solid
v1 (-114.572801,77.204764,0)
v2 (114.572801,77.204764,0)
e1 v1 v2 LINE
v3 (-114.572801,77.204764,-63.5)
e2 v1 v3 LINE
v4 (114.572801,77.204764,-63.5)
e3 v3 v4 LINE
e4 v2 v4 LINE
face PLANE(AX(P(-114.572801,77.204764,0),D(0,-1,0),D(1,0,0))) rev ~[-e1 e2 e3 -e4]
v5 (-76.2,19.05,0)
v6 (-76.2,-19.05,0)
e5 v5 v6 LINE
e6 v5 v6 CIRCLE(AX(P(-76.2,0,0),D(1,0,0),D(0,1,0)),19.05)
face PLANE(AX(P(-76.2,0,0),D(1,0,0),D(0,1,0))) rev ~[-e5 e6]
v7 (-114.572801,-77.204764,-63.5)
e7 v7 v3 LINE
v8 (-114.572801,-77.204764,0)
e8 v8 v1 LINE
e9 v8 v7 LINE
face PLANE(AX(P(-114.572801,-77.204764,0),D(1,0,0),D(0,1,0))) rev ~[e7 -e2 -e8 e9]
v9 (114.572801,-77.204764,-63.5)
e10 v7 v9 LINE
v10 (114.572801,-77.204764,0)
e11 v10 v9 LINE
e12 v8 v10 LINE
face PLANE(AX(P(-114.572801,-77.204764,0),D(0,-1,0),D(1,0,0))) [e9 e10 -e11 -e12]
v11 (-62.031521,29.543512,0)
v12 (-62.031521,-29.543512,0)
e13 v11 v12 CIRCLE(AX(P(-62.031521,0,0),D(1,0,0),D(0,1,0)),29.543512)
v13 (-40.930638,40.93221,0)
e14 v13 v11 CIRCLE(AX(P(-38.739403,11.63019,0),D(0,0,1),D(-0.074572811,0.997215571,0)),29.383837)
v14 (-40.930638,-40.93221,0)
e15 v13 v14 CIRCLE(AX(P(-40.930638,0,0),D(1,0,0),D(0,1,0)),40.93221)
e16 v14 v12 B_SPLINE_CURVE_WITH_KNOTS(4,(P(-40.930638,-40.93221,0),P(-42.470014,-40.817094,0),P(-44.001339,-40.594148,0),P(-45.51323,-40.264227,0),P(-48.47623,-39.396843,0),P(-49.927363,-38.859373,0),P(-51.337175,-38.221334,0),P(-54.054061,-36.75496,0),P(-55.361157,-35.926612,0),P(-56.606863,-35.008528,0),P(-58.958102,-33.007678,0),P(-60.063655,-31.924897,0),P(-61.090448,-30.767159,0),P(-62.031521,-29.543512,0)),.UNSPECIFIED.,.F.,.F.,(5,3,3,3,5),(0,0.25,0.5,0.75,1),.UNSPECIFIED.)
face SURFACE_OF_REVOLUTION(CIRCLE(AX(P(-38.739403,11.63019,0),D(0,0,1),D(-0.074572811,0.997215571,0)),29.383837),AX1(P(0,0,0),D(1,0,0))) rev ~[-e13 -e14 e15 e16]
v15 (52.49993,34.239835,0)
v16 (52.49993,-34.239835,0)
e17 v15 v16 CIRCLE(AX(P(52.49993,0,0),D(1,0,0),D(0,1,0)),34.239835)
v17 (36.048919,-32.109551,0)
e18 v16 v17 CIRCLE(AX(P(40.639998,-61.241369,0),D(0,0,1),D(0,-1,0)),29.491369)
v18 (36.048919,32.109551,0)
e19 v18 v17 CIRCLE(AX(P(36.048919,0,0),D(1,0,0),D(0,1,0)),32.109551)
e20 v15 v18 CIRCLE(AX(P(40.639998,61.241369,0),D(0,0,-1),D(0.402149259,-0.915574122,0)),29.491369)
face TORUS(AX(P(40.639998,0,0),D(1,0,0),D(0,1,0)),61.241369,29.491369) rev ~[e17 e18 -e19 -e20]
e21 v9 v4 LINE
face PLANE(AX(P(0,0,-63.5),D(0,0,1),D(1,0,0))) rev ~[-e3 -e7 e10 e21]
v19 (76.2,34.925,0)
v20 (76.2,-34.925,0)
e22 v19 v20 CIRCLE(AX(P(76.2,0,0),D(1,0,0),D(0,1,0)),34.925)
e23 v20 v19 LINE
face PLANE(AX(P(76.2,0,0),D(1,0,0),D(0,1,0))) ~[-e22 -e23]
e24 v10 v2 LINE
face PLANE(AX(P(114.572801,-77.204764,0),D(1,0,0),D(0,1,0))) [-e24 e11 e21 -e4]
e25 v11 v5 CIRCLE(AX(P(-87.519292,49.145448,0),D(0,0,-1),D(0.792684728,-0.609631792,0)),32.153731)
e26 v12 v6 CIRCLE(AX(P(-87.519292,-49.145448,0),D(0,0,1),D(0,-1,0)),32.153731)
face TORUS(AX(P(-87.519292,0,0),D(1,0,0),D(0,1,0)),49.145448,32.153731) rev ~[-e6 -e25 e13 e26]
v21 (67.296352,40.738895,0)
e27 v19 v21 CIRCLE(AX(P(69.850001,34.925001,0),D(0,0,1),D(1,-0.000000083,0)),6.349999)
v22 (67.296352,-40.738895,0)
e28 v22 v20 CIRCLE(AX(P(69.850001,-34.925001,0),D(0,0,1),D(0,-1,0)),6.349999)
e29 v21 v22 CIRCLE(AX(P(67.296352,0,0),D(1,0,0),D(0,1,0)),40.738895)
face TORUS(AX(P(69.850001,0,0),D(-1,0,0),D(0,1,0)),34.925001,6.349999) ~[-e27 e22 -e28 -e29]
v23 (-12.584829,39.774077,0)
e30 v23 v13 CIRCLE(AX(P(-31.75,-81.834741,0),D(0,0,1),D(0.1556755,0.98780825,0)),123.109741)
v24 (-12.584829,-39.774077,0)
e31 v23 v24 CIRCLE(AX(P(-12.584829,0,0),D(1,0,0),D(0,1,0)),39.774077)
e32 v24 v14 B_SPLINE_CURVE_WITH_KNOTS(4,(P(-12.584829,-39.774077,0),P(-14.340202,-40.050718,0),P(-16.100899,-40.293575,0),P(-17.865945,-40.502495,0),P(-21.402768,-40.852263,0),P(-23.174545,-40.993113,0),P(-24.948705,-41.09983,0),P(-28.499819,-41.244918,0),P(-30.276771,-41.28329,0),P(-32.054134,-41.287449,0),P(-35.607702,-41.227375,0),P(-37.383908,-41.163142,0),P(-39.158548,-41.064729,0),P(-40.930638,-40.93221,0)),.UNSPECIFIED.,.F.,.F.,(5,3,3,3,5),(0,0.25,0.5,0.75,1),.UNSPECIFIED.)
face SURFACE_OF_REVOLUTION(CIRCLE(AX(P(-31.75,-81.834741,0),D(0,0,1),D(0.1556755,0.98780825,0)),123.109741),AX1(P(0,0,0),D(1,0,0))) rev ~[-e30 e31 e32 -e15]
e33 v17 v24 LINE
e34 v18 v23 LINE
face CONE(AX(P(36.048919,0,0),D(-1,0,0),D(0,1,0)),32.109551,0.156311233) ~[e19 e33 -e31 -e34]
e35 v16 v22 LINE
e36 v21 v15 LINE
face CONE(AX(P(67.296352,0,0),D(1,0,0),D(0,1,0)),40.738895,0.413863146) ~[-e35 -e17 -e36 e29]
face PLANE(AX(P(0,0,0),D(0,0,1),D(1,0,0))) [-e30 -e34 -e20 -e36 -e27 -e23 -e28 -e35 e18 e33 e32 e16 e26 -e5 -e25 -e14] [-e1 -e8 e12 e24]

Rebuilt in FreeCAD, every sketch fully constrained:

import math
import FreeCAD as App
import Part
import Sketcher
from FreeCAD import Vector
Q = App.Units.Quantity

doc = App.newDocument("Part")
params = doc.addObject("Spreadsheet::Sheet", "Params")
for row, (alias, value) in enumerate([
    ("sketch1_width", "6 in"),
    ("sketch1_radius", "0.25 in"),
    ("sketch1_height", "0.75 in"),
    ("sketch1_height2", "1.375 in"),
    ("revolution_angle", "360 deg"),
    ("pad1_length", "2.5 in"),
], start=1):
    params.set(f"A{row}", alias)
    params.set(f"B{row}", "=" + value)
    params.setAlias(f"B{row}", alias)

body = doc.addObject("PartDesign::Body", "Body")

# Sketch on XY plane
sketch1 = body.newObject("Sketcher::SketchObject", "Sketch")
sketch1.AttachmentSupport = (doc.getObject("XY_Plane"), [""])
sketch1.MapMode = "FlatFace"
sketch1.addGeometry(Part.LineSegment(Vector(-76, 19, 0), Vector(-76, 0, 0)), False)
sketch1.addGeometry(Part.LineSegment(Vector(-76, 0, 0), Vector(76, 0, 0)), False)
sketch1.addGeometry(Part.LineSegment(Vector(76, 0, 0), Vector(76, 35, 0)), False)
sketch1.addGeometry(Part.ArcOfCircle(Part.Circle(Vector(70, 35, 0), Vector(0, 0, 1), 6), math.radians(0), math.radians(114)), False)
sketch1.addGeometry(Part.LineSegment(Vector(67, 41, 0), Vector(52, 34, 0)), False)
sketch1.addGeometry(Part.ArcOfCircle(Part.Circle(Vector(41, 61, 0), Vector(0, 0, 1), 29), math.radians(-99), math.radians(-66)), False)
sketch1.addGeometry(Part.LineSegment(Vector(36, 32, 0), Vector(-13, 40, 0)), False)
sketch1.addGeometry(Part.ArcOfCircle(Part.Circle(Vector(-32, -82, 0), Vector(0, 0, 1), 123), math.radians(81.04), math.radians(94.28)), False)
sketch1.addGeometry(Part.ArcOfCircle(Part.Circle(Vector(-39, 12, 0), Vector(0, 0, 1), 29), math.radians(94), math.radians(142)), False)
sketch1.addGeometry(Part.ArcOfCircle(Part.Circle(Vector(-88, 49, 0), Vector(0, 0, 1), 32), math.radians(-69), math.radians(-38)), False)
sketch1.addConstraint(Sketcher.Constraint("Coincident", 0, 2, 1, 1))
sketch1.addConstraint(Sketcher.Constraint("Coincident", 1, 2, 2, 1))
sketch1.addConstraint(Sketcher.Constraint("Tangent", 2, 2, 3, 1))
sketch1.addConstraint(Sketcher.Constraint("Tangent", 3, 2, 4, 1))
sketch1.addConstraint(Sketcher.Constraint("Tangent", 4, 2, 5, 2))
sketch1.addConstraint(Sketcher.Constraint("Tangent", 5, 1, 6, 1))
sketch1.addConstraint(Sketcher.Constraint("Tangent", 6, 2, 7, 1))
sketch1.addConstraint(Sketcher.Constraint("Tangent", 7, 2, 8, 1))
sketch1.addConstraint(Sketcher.Constraint("Tangent", 8, 2, 9, 2))
sketch1.addConstraint(Sketcher.Constraint("Coincident", 9, 1, 0, 1))
sketch1.addConstraint(Sketcher.Constraint("Vertical", 0))
sketch1.addConstraint(Sketcher.Constraint("Horizontal", 1))
sketch1.addConstraint(Sketcher.Constraint("Vertical", 2))
sketch1.addConstraint(Sketcher.Constraint("Symmetric", 0, 2, 1, 2, -1, 1))
sketch1.addConstraint(Sketcher.Constraint("DistanceX", 1, 1, 1, 2, Q("6 in")))
sketch1.addConstraint(Sketcher.Constraint("Radius", 3, Q("0.25 in")))
sketch1.addConstraint(Sketcher.Constraint("DistanceX", 7, 3, 3, 3, Q("4 in")))
sketch1.addConstraint(Sketcher.Constraint("DistanceY", 0, 2, 0, 1, Q("0.75 in")))
sketch1.addConstraint(Sketcher.Constraint("DistanceX", -1, 1, 5, 3, Q("1.5999999 in")))
sketch1.addConstraint(Sketcher.Constraint("DistanceY", 2, 1, 2, 2, Q("1.375 in")))
sketch1.addConstraint(Sketcher.Constraint("Radius", 5, Q("29.491369 mm")))
sketch1.addConstraint(Sketcher.Constraint("Radius", 7, Q("123.109741 mm")))
sketch1.addConstraint(Sketcher.Constraint("Radius", 9, Q("32.153731 mm")))
sketch1.addConstraint(Sketcher.Constraint("Radius", 8, Q("29.383837 mm")))
sketch1.addConstraint(Sketcher.Constraint("DistanceX", 8, 3, 5, 3, Q("79.379401 mm")))
sketch1.addConstraint(Sketcher.Constraint("DistanceY", -1, 1, 5, 3, Q("61.241369 mm")))
sketch1.addConstraint(Sketcher.Constraint("DistanceY", 7, 3, -1, 1, Q("81.834741 mm")))
sketch1.setExpression("Constraints[14]", "Params.sketch1_width")
sketch1.setExpression("Constraints[15]", "Params.sketch1_radius")
sketch1.setExpression("Constraints[17]", "Params.sketch1_height")
sketch1.setExpression("Constraints[19]", "Params.sketch1_height2")
revolution = body.newObject("PartDesign::Revolution", "Revolution")
revolution.Profile = sketch1
revolution.ReferenceAxis = (sketch1, ["H_Axis"])
revolution.setExpression("Angle", "Params.revolution_angle")

# Sketch on XY plane
sketch2 = body.newObject("Sketcher::SketchObject", "Sketch001")
sketch2.AttachmentSupport = (doc.getObject("XY_Plane"), [""])
sketch2.MapMode = "FlatFace"
sketch2.addGeometry(Part.LineSegment(Vector(-115, 77, 0), Vector(-115, -77, 0)), False)
sketch2.addGeometry(Part.LineSegment(Vector(-115, -77, 0), Vector(115, -77, 0)), False)
sketch2.addGeometry(Part.LineSegment(Vector(115, -77, 0), Vector(115, 77, 0)), False)
sketch2.addGeometry(Part.LineSegment(Vector(115, 77, 0), Vector(-115, 77, 0)), False)
sketch2.addConstraint(Sketcher.Constraint("Coincident", 0, 2, 1, 1))
sketch2.addConstraint(Sketcher.Constraint("Coincident", 1, 2, 2, 1))
sketch2.addConstraint(Sketcher.Constraint("Coincident", 2, 2, 3, 1))
sketch2.addConstraint(Sketcher.Constraint("Coincident", 3, 2, 0, 1))
sketch2.addConstraint(Sketcher.Constraint("Vertical", 0))
sketch2.addConstraint(Sketcher.Constraint("Horizontal", 1))
sketch2.addConstraint(Sketcher.Constraint("Vertical", 2))
sketch2.addConstraint(Sketcher.Constraint("Horizontal", 3))
sketch2.addConstraint(Sketcher.Constraint("Symmetric", 0, 2, 2, 2, -1, 1))
sketch2.addConstraint(Sketcher.Constraint("DistanceX", 1, 1, 1, 2, Q("229.145602 mm")))
sketch2.addConstraint(Sketcher.Constraint("DistanceY", 0, 2, 0, 1, Q("154.409528 mm")))
pad1 = body.newObject("PartDesign::Pad", "Pad")
pad1.Profile = sketch2
pad1.setExpression("Length", "Params.pad1_length")
pad1.Reversed = True

doc.recompute()
